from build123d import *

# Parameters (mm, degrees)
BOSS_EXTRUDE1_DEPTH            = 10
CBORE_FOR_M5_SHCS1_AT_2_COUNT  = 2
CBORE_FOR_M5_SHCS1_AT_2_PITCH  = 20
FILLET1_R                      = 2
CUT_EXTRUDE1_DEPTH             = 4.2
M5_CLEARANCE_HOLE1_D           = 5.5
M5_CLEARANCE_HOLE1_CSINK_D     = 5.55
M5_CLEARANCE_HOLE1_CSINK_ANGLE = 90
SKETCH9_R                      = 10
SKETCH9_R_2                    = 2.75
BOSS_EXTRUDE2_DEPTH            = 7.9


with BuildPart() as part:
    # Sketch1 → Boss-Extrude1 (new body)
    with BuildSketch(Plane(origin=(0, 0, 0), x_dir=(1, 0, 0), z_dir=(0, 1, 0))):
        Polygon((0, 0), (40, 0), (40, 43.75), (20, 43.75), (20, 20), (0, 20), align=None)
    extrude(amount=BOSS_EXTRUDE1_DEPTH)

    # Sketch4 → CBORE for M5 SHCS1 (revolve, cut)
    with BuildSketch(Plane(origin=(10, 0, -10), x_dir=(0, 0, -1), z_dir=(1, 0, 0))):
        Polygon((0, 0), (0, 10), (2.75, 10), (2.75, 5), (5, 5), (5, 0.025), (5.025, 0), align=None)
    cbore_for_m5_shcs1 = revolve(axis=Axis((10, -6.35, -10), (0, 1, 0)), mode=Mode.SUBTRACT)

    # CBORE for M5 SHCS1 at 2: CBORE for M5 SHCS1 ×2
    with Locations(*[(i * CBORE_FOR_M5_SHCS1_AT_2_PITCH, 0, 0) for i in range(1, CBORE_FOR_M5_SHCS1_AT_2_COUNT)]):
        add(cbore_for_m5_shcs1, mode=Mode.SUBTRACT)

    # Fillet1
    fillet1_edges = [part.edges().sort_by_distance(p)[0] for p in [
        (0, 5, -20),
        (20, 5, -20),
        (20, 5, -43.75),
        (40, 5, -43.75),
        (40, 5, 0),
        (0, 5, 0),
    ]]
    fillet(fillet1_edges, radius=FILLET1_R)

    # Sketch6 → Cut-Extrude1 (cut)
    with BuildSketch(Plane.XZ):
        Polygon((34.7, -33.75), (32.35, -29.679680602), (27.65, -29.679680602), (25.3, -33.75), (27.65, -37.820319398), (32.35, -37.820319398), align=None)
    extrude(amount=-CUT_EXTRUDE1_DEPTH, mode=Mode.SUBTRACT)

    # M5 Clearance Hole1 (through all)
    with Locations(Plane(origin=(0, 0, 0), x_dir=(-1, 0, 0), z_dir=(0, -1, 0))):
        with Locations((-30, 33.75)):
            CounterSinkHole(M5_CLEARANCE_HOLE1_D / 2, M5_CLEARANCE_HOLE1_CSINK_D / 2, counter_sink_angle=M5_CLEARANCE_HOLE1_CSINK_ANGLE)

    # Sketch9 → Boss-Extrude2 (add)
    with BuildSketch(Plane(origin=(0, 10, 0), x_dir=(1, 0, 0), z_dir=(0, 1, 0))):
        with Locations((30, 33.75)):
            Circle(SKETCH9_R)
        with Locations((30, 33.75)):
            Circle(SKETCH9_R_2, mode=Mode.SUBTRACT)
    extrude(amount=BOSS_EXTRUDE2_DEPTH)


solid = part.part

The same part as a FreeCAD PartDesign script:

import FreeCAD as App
import Part
import Sketcher
from FreeCAD import Vector
Q = App.Units.Quantity


def edges_at(feature, points):
    """Names of the edges that pass closest to the given points."""
    edges = feature.Shape.Edges
    near = lambda p: min(range(len(edges)), key=lambda i: edges[i].distToShape(Part.Vertex(*p))[0])
    return sorted({f"Edge{near(p) + 1}" for p in points})


def add_polygon(sketch, points):
    """Adds a closed chain of lines whose ends are joined by coincident constraints."""
    first, n = sketch.GeometryCount, len(points)
    for a, b in zip(points, points[1:] + points[:1]):
        sketch.addGeometry(Part.LineSegment(App.Vector(*a, 0), App.Vector(*b, 0)), False)
    for i in range(n):
        sketch.addConstraint(Sketcher.Constraint("Coincident", first + i, 2, first + (i + 1) % n, 1))

doc = App.newDocument("Part")
body = doc.addObject("PartDesign::Body", "Body")

# Sketch on XZ plane
sketch1 = doc.addObject("Sketcher::SketchObject", "Sketch")
body.addObject(sketch1)
sketch1.AttachmentSupport = (doc.XZ_Plane, [""])
sketch1.MapMode = "FlatFace"
add_polygon(sketch1, [(0, 0), (40, 0), (40, -44), (20, -44), (20, -20), (0, -20)])  # lines 0-5
sketch1.addConstraint([
    Sketcher.Constraint("Horizontal", 0),
    Sketcher.Constraint("Vertical", 1),
    Sketcher.Constraint("Horizontal", 2),
    Sketcher.Constraint("Vertical", 3),
    Sketcher.Constraint("Horizontal", 4),
    Sketcher.Constraint("Vertical", 5),
    Sketcher.Constraint("Coincident", 5, 2, -1, 1),
    Sketcher.Constraint("Equal", 2, 4),
    Sketcher.Constraint("Equal", 4, 5),
    Sketcher.Constraint("DistanceX", 0, 1, 0, 2, Q("40 mm")),
    Sketcher.Constraint("DistanceY", 1, 2, 1, 1, Q("43.75 mm")),
])
pad1 = doc.addObject("PartDesign::Pad", "Pad")
body.addObject(pad1)
pad1.Profile = sketch1
pad1.Length = 10
pad1.Reversed = True

# Sketch on YZ plane
sketch2 = doc.addObject("Sketcher::SketchObject", "Sketch001")
body.addObject(sketch2)
sketch2.AttachmentSupport = (doc.YZ_Plane, [""])
sketch2.MapMode = "FlatFace"
sketch2.AttachmentOffset = App.Placement(Vector(0, 0, 10), App.Rotation())
add_polygon(sketch2, [(10, -10), (0, -10), (0, -15.025), (0.025, -15), (5, -15), (5, -12.75), (10, -12.75)])  # lines 0-6
sketch2.addGeometry(Part.LineSegment(Vector(0, -10, 0), Vector(10, -10, 0)), True)  # axis
sketch2.addConstraint([
    Sketcher.Constraint("Horizontal", 0),
    Sketcher.Constraint("Vertical", 1),
    Sketcher.Constraint("Horizontal", 3),
    Sketcher.Constraint("Vertical", 4),
    Sketcher.Constraint("Horizontal", 5),
    Sketcher.Constraint("Vertical", 6),
    Sketcher.Constraint("Horizontal", 7),
    Sketcher.Constraint("Coincident", 7, 1, 0, 2),
    Sketcher.Constraint("PointOnObject", 0, 2, -2),
    Sketcher.Constraint("Vertical", 5, 2, 7, 2),
    Sketcher.Constraint("DistanceX", 0, 2, 0, 1, Q("10 mm")),
    Sketcher.Constraint("DistanceX", 5, 1, 5, 2, Q("5 mm")),
    Sketcher.Constraint("Angle", 2, Q("45 deg")),
    Sketcher.Constraint("DistanceY", 0, 2, -1, 1, Q("10 mm")),
    Sketcher.Constraint("DistanceY", 2, 2, -1, 1, Q("15 mm")),
    Sketcher.Constraint("DistanceY", 4, 1, 4, 2, Q("2.25 mm")),
    Sketcher.Constraint("DistanceX", 3, 1, 3, 2, Q("4.975 mm")),
])
groove = doc.addObject("PartDesign::Groove", "Groove")
body.addObject(groove)
groove.Profile = sketch2
groove.ReferenceAxis = (sketch2, ["Axis0"])
groove.Angle = 360
doc.recompute()

linearpattern = doc.addObject("PartDesign::LinearPattern", "LinearPattern")
body.addObject(linearpattern)
linearpattern.Originals = [groove]
linearpattern.Direction = (doc.X_Axis, [""])
linearpattern.Mode = "offset"
linearpattern.Offset = 20
linearpattern.Occurrences = 2
body.Tip = linearpattern
doc.recompute()

fillet = doc.addObject("PartDesign::Fillet", "Fillet")
body.addObject(fillet)
fillet.Base = (linearpattern, edges_at(linearpattern, [
    (0, 5, -20),
    (20, 5, -20),
    (20, 5, -43.75),
    (40, 5, -43.75),
    (40, 5, 0),
    (0, 5, 0),
]))
fillet.Radius = 2

# Sketch on XZ plane
sketch3 = doc.addObject("Sketcher::SketchObject", "Sketch002")
body.addObject(sketch3)
sketch3.AttachmentSupport = (doc.XZ_Plane, [""])
sketch3.MapMode = "FlatFace"
add_polygon(sketch3, [(34.7, -33.8), (32.4, -29.7), (27.6, -29.7), (25.3, -33.8), (27.6, -37.8), (32.4, -37.8)])  # lines 0-5
sketch3.addConstraint([
    Sketcher.Constraint("Horizontal", 1),
    Sketcher.Constraint("Horizontal", 4),
    Sketcher.Constraint("Parallel", 0, 3),
    Sketcher.Constraint("Parallel", 2, 5),
    Sketcher.Constraint("Horizontal", 2, 2, 5, 2),
    Sketcher.Constraint("Vertical", 1, 2, 3, 2),
    Sketcher.Constraint("Vertical", 0, 2, 4, 2),
    Sketcher.Constraint("Angle", 0, Q("120 deg")),
    Sketcher.Constraint("DistanceX", 1, 2, 1, 1, Q("4.7 mm")),
    Sketcher.Constraint("Distance", 0, Q("4.7 mm")),
    Sketcher.Constraint("DistanceX", -1, 1, 2, 2, Q("25.3 mm")),
    Sketcher.Constraint("DistanceY", 2, 2, -1, 1, Q("33.75 mm")),
])
pocket1 = doc.addObject("PartDesign::Pocket", "Pocket")
body.addObject(pocket1)
pocket1.Profile = sketch3
pocket1.Length = 4.2

# Sketch on XZ plane
sketch4 = doc.addObject("Sketcher::SketchObject", "Sketch003")
body.addObject(sketch4)
sketch4.AttachmentSupport = (doc.XZ_Plane, [""])
sketch4.MapMode = "FlatFace"
sketch4.addGeometry(Part.Circle(Vector(30, -33.8, 0), Vector(0, 0, 1), 2.8), False)
sketch4.addConstraint([
    Sketcher.Constraint("Diameter", 0, Q("5.5 mm")),
    Sketcher.Constraint("DistanceX", -1, 1, 0, 3, Q("30 mm")),
    Sketcher.Constraint("DistanceY", 0, 3, -1, 1, Q("33.75 mm")),
])
doc.recompute()
hole = doc.addObject("PartDesign::Hole", "Hole")
body.addObject(hole)
hole.Profile = sketch4
hole.ThreadType = "None"
hole.Diameter = 5.5
hole.DepthType = "ThroughAll"
hole.HoleCutType = "Countersink"
hole.HoleCutDiameter = 5.55
hole.HoleCutCountersinkAngle = 90

# Sketch on XZ plane
sketch5 = doc.addObject("Sketcher::SketchObject", "Sketch004")
body.addObject(sketch5)
sketch5.AttachmentSupport = (doc.XZ_Plane, [""])
sketch5.MapMode = "FlatFace"
sketch5.AttachmentOffset = App.Placement(Vector(0, 0, -10), App.Rotation())
sketch5.addGeometry([
    Part.Circle(Vector(30, -33.8, 0), Vector(0, 0, 1), 10),
    Part.Circle(Vector(30, -33.8, 0), Vector(0, 0, 1), 2.8),
], False)
sketch5.addConstraint([
    Sketcher.Constraint("Coincident", 1, 3, 0, 3),
    Sketcher.Constraint("Diameter", 0, Q("20 mm")),
    Sketcher.Constraint("Diameter", 1, Q("5.5 mm")),
    Sketcher.Constraint("DistanceX", -1, 1, 0, 3, Q("30 mm")),
    Sketcher.Constraint("DistanceY", 0, 3, -1, 1, Q("33.75 mm")),
])
pad2 = doc.addObject("PartDesign::Pad", "Pad001")
body.addObject(pad2)
pad2.Profile = sketch5
pad2.Length = 7.9
pad2.Reversed = True

doc.recompute()
